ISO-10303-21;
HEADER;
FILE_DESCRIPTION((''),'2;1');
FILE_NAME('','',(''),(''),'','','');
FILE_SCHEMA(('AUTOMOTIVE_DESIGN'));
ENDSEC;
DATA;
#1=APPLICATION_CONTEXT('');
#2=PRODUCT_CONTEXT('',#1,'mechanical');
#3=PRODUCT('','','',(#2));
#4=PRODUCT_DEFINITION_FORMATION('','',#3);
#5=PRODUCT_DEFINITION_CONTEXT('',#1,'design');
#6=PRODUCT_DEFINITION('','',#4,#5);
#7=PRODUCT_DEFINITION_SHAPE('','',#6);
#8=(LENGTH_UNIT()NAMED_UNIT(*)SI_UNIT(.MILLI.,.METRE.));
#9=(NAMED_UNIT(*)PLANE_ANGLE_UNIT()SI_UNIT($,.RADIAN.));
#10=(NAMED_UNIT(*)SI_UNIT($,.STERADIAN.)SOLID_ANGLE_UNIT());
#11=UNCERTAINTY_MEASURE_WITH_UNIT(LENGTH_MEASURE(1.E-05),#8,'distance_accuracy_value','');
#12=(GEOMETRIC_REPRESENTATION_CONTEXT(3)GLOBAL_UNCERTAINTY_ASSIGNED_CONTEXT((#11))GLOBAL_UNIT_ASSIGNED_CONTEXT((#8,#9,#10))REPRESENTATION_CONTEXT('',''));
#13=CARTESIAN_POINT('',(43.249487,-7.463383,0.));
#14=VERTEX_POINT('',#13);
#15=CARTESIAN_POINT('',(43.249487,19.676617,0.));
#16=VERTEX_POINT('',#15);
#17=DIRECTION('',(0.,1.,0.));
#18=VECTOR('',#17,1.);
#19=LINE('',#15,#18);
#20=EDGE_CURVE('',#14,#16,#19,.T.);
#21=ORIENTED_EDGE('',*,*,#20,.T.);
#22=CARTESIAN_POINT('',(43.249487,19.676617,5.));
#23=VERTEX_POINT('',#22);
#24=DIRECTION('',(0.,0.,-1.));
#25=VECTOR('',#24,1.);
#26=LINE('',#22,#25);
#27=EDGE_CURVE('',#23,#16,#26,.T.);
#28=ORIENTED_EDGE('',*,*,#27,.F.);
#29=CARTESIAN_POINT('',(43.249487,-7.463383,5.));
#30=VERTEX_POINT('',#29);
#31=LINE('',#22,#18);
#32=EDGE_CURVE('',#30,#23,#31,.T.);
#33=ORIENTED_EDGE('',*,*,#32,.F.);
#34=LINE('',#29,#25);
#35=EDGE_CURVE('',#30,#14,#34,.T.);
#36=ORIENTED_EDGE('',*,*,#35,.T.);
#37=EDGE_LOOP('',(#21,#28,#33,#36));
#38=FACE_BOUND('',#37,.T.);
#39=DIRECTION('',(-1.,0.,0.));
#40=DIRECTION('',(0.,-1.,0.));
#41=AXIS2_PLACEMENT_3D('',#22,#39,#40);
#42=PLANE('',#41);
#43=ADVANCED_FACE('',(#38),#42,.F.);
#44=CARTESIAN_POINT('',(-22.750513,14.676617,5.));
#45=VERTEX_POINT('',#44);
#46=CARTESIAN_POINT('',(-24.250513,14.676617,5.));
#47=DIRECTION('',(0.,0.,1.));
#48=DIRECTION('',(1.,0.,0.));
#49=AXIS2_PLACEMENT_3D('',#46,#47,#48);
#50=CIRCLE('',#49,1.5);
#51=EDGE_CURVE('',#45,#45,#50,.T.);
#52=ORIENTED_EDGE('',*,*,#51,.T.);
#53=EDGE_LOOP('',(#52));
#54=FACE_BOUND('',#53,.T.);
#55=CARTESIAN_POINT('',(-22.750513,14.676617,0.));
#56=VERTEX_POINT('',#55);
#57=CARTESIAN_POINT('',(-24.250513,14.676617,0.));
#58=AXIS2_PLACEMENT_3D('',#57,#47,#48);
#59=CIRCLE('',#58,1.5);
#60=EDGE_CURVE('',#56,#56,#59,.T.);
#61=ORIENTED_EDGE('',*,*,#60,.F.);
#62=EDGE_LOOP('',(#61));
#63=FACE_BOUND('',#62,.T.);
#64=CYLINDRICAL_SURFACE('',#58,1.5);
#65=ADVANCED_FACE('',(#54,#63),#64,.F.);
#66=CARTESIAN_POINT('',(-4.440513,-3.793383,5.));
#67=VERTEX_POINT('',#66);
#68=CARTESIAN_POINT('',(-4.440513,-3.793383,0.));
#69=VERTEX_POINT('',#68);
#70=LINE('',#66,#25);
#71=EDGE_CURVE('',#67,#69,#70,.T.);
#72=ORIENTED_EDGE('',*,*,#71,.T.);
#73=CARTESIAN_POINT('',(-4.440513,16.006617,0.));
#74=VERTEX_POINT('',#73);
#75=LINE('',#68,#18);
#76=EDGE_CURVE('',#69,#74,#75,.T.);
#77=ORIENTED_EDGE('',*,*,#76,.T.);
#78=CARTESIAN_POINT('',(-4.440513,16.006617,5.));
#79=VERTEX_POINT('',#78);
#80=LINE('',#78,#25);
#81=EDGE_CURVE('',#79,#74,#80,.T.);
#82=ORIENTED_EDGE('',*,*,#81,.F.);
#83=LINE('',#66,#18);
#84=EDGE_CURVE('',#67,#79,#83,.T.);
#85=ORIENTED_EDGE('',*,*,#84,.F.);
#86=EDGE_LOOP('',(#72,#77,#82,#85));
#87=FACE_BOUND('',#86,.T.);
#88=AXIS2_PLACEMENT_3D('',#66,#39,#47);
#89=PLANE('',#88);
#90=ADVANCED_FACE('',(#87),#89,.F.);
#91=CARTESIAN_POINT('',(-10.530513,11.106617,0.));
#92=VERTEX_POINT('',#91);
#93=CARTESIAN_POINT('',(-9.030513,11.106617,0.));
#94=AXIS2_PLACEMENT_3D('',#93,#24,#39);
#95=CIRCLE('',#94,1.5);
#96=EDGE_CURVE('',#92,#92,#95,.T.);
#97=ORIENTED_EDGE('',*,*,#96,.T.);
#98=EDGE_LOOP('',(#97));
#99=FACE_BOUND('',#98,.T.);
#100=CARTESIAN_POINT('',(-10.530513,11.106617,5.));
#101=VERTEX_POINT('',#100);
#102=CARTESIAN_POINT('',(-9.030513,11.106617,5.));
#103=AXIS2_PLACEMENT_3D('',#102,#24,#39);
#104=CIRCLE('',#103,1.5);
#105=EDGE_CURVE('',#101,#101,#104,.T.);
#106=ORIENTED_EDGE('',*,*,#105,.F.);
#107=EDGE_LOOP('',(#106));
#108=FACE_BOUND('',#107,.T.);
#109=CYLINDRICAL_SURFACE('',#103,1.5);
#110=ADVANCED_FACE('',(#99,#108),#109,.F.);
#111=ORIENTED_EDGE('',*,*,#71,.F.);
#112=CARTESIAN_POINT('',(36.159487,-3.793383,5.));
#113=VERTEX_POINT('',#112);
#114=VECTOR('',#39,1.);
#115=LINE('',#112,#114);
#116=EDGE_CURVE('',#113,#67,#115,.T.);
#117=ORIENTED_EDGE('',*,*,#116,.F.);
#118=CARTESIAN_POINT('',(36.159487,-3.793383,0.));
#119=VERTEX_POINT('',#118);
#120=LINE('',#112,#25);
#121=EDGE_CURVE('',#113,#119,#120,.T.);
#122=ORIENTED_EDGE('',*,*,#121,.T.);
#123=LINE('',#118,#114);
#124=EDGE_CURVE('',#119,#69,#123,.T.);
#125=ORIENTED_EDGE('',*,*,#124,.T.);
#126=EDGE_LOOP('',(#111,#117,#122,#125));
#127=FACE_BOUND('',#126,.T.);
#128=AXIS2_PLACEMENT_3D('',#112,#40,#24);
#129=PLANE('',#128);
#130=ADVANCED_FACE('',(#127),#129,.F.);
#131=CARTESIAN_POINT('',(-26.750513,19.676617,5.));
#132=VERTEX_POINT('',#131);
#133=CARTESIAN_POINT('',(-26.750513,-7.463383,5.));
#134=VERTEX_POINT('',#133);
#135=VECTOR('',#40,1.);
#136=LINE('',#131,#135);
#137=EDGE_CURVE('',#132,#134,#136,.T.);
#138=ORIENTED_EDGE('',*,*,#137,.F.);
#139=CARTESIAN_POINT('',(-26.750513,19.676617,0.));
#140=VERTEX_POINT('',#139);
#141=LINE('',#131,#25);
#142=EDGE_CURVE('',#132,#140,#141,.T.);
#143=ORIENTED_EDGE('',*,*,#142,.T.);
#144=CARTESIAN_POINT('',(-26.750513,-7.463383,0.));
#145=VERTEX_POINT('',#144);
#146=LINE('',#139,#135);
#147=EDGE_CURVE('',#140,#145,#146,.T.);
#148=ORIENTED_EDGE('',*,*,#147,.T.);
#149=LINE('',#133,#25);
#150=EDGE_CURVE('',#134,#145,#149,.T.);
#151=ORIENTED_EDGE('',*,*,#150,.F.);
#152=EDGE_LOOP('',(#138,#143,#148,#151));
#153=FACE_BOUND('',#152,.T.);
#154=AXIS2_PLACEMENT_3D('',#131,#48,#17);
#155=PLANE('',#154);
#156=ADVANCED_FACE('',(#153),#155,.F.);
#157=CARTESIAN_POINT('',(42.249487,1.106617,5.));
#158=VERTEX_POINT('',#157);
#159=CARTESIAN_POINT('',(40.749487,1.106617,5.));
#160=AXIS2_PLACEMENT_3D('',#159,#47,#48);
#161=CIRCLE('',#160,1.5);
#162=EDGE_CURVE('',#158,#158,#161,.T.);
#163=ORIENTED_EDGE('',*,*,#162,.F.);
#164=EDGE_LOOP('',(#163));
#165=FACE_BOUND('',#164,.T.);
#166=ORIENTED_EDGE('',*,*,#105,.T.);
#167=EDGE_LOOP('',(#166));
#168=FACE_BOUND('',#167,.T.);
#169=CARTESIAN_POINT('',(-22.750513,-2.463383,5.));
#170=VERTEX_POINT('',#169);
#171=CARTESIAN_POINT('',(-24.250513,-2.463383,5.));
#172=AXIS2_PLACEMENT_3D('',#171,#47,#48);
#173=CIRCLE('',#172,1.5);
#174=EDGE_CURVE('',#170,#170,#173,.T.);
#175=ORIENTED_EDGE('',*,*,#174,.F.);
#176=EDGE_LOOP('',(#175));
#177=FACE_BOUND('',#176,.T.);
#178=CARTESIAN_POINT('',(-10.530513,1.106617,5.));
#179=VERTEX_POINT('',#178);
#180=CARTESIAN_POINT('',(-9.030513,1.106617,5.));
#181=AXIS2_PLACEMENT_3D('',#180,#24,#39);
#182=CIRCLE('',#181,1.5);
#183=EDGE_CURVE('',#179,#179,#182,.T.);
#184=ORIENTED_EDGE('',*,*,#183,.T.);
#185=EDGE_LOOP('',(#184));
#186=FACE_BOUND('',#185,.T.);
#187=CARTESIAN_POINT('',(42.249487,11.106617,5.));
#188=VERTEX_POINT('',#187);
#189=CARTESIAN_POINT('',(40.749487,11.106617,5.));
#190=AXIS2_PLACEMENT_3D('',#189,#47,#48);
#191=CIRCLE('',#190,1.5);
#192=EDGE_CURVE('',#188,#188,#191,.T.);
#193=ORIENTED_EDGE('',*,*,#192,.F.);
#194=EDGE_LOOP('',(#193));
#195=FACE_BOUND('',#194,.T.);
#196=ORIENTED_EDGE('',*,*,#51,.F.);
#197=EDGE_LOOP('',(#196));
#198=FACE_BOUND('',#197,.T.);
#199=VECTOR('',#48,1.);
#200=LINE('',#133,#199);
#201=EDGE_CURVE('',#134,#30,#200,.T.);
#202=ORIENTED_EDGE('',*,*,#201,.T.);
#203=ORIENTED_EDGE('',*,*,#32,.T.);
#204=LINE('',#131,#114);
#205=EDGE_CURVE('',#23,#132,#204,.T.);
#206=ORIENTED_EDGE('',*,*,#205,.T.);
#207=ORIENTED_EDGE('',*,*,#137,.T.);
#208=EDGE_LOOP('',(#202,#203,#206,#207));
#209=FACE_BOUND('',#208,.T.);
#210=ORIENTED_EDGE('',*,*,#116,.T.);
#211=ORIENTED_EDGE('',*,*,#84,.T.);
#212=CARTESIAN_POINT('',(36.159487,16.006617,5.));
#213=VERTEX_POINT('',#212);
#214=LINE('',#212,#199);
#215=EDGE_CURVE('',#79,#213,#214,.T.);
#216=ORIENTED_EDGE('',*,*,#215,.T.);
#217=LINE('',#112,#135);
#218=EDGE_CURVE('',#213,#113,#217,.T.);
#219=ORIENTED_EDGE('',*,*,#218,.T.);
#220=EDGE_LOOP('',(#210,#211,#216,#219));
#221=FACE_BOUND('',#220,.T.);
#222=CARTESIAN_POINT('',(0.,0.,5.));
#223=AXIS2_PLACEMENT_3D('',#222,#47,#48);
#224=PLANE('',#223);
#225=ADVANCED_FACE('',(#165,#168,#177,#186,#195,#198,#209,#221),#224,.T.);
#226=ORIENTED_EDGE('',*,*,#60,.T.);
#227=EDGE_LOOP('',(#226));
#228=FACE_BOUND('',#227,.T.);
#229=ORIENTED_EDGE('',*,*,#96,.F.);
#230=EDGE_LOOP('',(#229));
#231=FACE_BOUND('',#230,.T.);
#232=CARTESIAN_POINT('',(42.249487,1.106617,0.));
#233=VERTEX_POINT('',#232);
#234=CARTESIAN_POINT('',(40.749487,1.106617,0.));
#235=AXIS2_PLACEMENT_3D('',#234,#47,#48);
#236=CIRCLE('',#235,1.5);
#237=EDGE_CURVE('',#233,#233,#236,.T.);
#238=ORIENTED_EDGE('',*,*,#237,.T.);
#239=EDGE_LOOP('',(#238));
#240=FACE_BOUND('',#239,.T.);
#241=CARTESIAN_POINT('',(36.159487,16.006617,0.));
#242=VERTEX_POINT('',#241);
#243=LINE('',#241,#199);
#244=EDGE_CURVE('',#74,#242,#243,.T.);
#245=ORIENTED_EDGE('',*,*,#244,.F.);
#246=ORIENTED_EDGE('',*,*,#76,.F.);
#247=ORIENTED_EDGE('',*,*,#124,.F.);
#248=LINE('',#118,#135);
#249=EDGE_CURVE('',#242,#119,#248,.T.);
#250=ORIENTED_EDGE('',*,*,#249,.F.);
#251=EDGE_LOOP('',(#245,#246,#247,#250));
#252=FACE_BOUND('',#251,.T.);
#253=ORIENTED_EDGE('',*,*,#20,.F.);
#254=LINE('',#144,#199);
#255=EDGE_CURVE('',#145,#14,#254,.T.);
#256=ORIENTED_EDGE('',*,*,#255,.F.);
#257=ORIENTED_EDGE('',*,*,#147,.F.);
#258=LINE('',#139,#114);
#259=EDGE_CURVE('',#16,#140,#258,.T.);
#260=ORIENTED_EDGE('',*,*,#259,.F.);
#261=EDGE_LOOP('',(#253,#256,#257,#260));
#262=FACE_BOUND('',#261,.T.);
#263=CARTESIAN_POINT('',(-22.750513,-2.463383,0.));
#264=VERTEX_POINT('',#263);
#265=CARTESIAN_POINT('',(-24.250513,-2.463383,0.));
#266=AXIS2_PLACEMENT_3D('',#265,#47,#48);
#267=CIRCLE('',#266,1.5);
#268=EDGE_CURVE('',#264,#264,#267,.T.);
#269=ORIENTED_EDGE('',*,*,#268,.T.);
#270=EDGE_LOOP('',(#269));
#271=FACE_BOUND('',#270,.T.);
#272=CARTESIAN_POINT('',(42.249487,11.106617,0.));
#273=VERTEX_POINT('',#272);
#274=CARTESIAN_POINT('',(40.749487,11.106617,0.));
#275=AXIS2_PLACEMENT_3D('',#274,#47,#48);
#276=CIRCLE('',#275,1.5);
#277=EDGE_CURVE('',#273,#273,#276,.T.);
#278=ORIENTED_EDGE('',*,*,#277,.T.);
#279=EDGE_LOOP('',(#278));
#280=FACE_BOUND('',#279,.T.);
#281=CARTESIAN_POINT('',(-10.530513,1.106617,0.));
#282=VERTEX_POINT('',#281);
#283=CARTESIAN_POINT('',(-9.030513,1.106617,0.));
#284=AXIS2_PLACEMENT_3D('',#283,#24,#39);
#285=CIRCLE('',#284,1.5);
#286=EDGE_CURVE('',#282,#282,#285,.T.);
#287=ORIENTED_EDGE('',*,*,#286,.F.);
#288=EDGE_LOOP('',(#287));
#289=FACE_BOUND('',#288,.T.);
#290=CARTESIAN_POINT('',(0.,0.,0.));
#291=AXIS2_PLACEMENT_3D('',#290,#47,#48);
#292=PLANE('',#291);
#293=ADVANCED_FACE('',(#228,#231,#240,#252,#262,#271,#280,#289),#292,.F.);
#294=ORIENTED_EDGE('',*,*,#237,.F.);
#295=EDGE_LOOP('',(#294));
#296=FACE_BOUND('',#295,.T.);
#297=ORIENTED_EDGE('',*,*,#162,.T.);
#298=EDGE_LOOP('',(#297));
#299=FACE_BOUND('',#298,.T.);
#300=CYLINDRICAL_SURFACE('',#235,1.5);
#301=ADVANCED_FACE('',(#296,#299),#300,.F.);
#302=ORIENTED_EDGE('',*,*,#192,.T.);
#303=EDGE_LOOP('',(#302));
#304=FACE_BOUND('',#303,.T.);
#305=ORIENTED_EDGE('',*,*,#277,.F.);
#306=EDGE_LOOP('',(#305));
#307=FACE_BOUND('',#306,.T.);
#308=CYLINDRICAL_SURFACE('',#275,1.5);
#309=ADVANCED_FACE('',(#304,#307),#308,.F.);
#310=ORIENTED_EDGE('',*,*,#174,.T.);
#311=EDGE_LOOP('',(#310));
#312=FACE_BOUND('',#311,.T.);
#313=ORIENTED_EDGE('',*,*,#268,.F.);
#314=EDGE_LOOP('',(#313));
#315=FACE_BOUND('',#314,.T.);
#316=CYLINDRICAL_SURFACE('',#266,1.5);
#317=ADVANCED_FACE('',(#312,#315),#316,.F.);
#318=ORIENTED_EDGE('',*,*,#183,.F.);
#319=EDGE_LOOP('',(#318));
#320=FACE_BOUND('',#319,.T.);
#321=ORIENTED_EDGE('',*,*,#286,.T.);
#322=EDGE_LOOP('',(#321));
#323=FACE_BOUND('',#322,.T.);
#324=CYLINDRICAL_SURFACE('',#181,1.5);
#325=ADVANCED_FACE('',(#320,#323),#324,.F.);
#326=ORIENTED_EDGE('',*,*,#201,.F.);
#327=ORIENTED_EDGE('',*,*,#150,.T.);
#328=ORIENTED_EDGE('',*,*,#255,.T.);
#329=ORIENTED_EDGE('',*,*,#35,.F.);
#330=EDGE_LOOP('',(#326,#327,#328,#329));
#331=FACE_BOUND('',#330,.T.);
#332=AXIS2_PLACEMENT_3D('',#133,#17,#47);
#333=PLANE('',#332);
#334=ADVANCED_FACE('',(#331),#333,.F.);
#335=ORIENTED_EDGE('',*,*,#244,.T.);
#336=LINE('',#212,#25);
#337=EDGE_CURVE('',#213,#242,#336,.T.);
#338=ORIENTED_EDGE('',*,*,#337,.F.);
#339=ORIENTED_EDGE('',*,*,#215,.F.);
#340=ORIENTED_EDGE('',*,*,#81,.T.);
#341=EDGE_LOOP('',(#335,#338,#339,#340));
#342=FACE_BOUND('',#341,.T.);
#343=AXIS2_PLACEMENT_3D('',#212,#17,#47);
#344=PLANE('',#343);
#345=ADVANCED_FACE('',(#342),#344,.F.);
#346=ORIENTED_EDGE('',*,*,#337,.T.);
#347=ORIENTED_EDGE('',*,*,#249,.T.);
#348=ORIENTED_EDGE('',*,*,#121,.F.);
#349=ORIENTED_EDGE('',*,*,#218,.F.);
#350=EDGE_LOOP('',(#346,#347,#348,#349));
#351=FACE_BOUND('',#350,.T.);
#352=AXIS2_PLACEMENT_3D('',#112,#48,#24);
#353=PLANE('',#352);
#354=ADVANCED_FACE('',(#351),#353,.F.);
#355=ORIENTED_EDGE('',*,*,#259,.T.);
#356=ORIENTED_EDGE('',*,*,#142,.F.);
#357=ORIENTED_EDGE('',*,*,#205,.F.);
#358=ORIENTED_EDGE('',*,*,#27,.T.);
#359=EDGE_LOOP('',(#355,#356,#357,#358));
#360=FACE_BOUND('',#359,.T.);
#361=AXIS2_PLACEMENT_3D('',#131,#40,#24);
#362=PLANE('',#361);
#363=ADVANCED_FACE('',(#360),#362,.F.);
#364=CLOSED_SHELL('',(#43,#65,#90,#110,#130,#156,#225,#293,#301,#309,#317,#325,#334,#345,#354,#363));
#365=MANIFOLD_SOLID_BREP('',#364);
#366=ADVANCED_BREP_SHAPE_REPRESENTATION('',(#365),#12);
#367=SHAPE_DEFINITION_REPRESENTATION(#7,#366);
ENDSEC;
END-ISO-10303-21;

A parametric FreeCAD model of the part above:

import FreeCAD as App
import Part
import Sketcher
from FreeCAD import Vector

doc = App.newDocument("Part")
body = doc.addObject("PartDesign::Body", "Body")

sketch1 = body.newObject("Sketcher::SketchObject", "Sketch")
sketch1.AttachmentSupport = (doc.getObject("XY_Plane"), [""])
sketch1.MapMode = "FlatFace"
sketch1.addGeometry([
    Part.LineSegment(Vector(-26.750513, 19.676617, 0), Vector(-26.750513, -7.463383, 0)),
    Part.LineSegment(Vector(-26.750513, -7.463383, 0), Vector(43.249487, -7.463383, 0)),
    Part.LineSegment(Vector(43.249487, -7.463383, 0), Vector(43.249487, 19.676617, 0)),
    Part.LineSegment(Vector(43.249487, 19.676617, 0), Vector(-26.750513, 19.676617, 0)),
], False)
sketch1.addConstraint([
    Sketcher.Constraint("Coincident", 0, 2, 1, 1),
    Sketcher.Constraint("Coincident", 1, 2, 2, 1),
    Sketcher.Constraint("Coincident", 2, 2, 3, 1),
    Sketcher.Constraint("Coincident", 3, 2, 0, 1),
    Sketcher.Constraint("Vertical", 0),
    Sketcher.Constraint("Horizontal", 1),
    Sketcher.Constraint("Vertical", 2),
    Sketcher.Constraint("Horizontal", 3),
    Sketcher.Constraint("DistanceX", 1, 1, 1, 2, 70.0),
    Sketcher.Constraint("DistanceY", 0, 2, 0, 1, 27.14),
    Sketcher.Constraint("DistanceX", 0, 2, -1, 1, 26.750513),
    Sketcher.Constraint("DistanceY", 0, 2, -1, 1, 7.463383),
])
pad1 = body.newObject("PartDesign::Pad", "Pad")
pad1.Profile = sketch1
pad1.Length = 5

sketch2 = body.newObject("Sketcher::SketchObject", "Sketch001")
sketch2.AttachmentSupport = (doc.getObject("XY_Plane"), [""])
sketch2.MapMode = "FlatFace"
sketch2.AttachmentOffset = App.Placement(Vector(0, 0, 5), App.Rotation())
sketch2.addGeometry([
    Part.Circle(Vector(-24.250513, 14.676617, 0), Vector(0, 0, 1), 1.5),
    Part.Circle(Vector(-24.250513, -2.463383, 0), Vector(0, 0, 1), 1.5),
    Part.Circle(Vector(40.749487, 11.106617, 0), Vector(0, 0, 1), 1.5),
    Part.Circle(Vector(40.749487, 1.106617, 0), Vector(0, 0, 1), 1.5),
], False)
sketch2.addConstraint([
    Sketcher.Constraint("Equal", 0, 1),
    Sketcher.Constraint("Equal", 1, 2),
    Sketcher.Constraint("Equal", 2, 3),
    Sketcher.Constraint("Vertical", 0, 3, 1, 3),
    Sketcher.Constraint("Vertical", 2, 3, 3, 3),
    Sketcher.Constraint("Diameter", 0, 3.0),
    Sketcher.Constraint("DistanceX", 0, 3, 2, 3, 65.0),
    Sketcher.Constraint("DistanceY", 3, 3, 2, 3, 10.0),
    Sketcher.Constraint("DistanceY", 1, 3, 0, 3, 17.14),
    Sketcher.Constraint("DistanceY", 2, 3, 0, 3, 3.57),
    Sketcher.Constraint("DistanceX", 0, 3, -1, 1, 24.250513),
    Sketcher.Constraint("DistanceY", -1, 1, 0, 3, 14.676617),
])
pocket1 = body.newObject("PartDesign::Pocket", "Pocket")
pocket1.Profile = sketch2
pocket1.Length = 5

sketch3 = body.newObject("Sketcher::SketchObject", "Sketch002")
sketch3.AttachmentSupport = (doc.getObject("XY_Plane"), [""])
sketch3.MapMode = "FlatFace"
sketch3.addGeometry([
    Part.LineSegment(Vector(36.159487, 16.006617, 0), Vector(36.159487, -3.793383, 0)),
    Part.LineSegment(Vector(36.159487, -3.793383, 0), Vector(-4.440513, -3.793383, 0)),
    Part.LineSegment(Vector(-4.440513, -3.793383, 0), Vector(-4.440513, 16.006617, 0)),
    Part.LineSegment(Vector(-4.440513, 16.006617, 0), Vector(36.159487, 16.006617, 0)),
], False)
sketch3.addConstraint([
    Sketcher.Constraint("Coincident", 0, 2, 1, 1),
    Sketcher.Constraint("Coincident", 1, 2, 2, 1),
    Sketcher.Constraint("Coincident", 2, 2, 3, 1),
    Sketcher.Constraint("Coincident", 3, 2, 0, 1),
    Sketcher.Constraint("Vertical", 0),
    Sketcher.Constraint("Horizontal", 1),
    Sketcher.Constraint("Vertical", 2),
    Sketcher.Constraint("Horizontal", 3),
    Sketcher.Constraint("DistanceX", 1, 2, 1, 1, 40.6),
    Sketcher.Constraint("DistanceY", 0, 2, 0, 1, 19.8),
    Sketcher.Constraint("DistanceX", -1, 1, 0, 2, 36.159487),
    Sketcher.Constraint("DistanceY", 0, 2, -1, 1, 3.793383),
])
pocket2 = body.newObject("PartDesign::Pocket", "Pocket001")
pocket2.Profile = sketch3
pocket2.Type = "ThroughAll"
pocket2.Reversed = True

sketch4 = body.newObject("Sketcher::SketchObject", "Sketch003")
sketch4.AttachmentSupport = (doc.getObject("XY_Plane"), [""])
sketch4.MapMode = "FlatFace"
sketch4.addGeometry([
    Part.Circle(Vector(-9.030513, 1.106617, 0), Vector(0, 0, 1), 1.5),
    Part.Circle(Vector(-9.030513, 11.106617, 0), Vector(0, 0, 1), 1.5),
], False)
sketch4.addConstraint([
    Sketcher.Constraint("Equal", 0, 1),
    Sketcher.Constraint("Vertical", 0, 3, 1, 3),
    Sketcher.Constraint("Diameter", 0, 3.0),
    Sketcher.Constraint("DistanceY", 0, 3, 1, 3, 10.0),
    Sketcher.Constraint("DistanceX", 0, 3, -1, 1, 9.030513),
    Sketcher.Constraint("DistanceY", -1, 1, 0, 3, 1.106617),
])
pocket3 = body.newObject("PartDesign::Pocket", "Pocket002")
pocket3.Profile = sketch4
pocket3.Type = "ThroughAll"
pocket3.Reversed = True

doc.recompute()
